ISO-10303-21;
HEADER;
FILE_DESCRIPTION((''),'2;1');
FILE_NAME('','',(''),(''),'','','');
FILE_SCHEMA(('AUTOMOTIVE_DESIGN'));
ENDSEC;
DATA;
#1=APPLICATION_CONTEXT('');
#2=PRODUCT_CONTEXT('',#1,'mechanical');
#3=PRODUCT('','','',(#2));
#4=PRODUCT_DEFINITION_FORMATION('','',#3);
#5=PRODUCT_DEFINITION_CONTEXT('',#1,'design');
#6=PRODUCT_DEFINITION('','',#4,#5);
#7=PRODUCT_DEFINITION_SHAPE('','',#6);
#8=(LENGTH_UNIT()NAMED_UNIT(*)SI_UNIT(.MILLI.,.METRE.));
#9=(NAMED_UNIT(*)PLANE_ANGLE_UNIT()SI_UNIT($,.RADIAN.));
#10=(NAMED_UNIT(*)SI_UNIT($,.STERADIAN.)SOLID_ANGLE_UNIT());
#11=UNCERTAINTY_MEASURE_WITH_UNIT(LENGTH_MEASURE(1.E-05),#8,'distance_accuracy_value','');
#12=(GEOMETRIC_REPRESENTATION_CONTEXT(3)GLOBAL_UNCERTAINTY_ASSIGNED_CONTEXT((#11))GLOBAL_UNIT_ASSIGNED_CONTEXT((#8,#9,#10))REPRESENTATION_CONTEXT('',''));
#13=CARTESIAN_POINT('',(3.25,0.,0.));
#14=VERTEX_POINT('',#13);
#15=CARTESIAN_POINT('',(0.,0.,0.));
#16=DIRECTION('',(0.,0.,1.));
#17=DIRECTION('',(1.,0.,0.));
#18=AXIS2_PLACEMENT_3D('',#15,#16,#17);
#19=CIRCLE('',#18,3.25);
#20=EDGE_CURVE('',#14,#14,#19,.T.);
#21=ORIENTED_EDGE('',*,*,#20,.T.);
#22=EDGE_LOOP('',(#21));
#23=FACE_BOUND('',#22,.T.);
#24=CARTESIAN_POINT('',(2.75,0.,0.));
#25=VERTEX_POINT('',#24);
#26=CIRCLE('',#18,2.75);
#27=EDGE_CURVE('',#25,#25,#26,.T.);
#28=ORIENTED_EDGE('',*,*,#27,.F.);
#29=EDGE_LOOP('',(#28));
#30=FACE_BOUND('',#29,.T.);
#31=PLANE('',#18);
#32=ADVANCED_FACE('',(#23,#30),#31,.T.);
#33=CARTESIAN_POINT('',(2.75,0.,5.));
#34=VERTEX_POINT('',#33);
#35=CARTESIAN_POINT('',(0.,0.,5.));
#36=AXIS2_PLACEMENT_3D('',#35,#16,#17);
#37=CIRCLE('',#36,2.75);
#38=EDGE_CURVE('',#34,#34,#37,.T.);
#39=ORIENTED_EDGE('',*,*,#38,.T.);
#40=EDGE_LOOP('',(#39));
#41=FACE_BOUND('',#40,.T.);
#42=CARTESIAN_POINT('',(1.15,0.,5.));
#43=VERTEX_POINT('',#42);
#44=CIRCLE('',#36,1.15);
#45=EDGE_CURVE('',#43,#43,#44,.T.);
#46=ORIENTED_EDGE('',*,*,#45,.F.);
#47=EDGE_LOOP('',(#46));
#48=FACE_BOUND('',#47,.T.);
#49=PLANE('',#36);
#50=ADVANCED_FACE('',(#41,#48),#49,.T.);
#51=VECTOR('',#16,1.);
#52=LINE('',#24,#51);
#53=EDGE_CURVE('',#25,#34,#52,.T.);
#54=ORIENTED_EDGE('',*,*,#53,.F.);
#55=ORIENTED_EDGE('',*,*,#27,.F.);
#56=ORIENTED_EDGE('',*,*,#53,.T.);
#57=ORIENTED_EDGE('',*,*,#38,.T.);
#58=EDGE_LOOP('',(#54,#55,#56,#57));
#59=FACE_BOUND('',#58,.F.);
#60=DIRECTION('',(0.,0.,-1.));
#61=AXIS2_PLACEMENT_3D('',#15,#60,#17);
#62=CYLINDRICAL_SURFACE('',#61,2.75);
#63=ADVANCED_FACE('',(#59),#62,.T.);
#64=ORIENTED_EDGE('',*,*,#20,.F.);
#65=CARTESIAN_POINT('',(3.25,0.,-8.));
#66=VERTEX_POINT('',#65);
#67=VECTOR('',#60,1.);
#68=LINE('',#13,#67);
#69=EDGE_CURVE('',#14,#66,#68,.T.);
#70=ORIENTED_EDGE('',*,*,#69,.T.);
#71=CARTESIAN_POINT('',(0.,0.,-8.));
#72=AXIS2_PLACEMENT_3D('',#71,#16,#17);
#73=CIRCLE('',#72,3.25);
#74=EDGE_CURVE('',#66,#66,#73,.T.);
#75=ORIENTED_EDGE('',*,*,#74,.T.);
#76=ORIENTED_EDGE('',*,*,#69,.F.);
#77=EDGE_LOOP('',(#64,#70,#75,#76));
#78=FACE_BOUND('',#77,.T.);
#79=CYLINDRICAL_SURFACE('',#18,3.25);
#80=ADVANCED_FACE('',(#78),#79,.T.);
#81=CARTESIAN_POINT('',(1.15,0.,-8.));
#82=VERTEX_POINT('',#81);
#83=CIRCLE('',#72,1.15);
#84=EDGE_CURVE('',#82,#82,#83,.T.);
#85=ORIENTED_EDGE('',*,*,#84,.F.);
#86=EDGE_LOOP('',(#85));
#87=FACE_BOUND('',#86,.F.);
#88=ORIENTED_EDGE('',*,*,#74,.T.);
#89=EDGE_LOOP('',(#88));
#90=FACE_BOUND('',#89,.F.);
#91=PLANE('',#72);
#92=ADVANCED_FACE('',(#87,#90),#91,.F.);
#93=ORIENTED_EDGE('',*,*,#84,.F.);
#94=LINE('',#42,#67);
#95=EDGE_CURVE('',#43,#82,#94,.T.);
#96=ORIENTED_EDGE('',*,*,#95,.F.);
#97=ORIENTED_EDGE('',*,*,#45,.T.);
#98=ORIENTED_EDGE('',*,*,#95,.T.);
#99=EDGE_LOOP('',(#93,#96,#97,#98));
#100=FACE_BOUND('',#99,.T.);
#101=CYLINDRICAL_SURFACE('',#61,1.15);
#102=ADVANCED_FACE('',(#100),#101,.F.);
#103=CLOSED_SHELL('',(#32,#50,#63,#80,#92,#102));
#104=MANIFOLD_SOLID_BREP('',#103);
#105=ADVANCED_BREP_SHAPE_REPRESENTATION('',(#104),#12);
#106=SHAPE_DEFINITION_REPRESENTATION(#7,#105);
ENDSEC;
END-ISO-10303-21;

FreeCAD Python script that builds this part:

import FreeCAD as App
import Part
import Sketcher

doc = App.newDocument("Part")
body = doc.addObject("PartDesign::Body", "Body")

sketch1 = doc.addObject("Sketcher::SketchObject", "Sketch")
body.addObject(sketch1)
sketch1.AttachmentSupport = (doc.XY_Plane, [""])
sketch1.MapMode = "FlatFace"
sketch1.addGeometry(Part.Circle(App.Vector(0, 0, 0), App.Vector(0, 0, 1), 2.75), False)
sketch1.addGeometry(Part.Circle(App.Vector(0, 0, 0), App.Vector(0, 0, 1), 1.15), False)
sketch1.addConstraint(Sketcher.Constraint("Coincident", 0, 3, -1, 1))
sketch1.addConstraint(Sketcher.Constraint("Coincident", 1, 3, -1, 1))
sketch1.addConstraint(Sketcher.Constraint("Diameter", 0, 5.5))
sketch1.addConstraint(Sketcher.Constraint("Diameter", 1, 2.3))
pad1 = doc.addObject("PartDesign::Pad", "Pad")
body.addObject(pad1)
pad1.Profile = sketch1
pad1.Length = 5

sketch2 = doc.addObject("Sketcher::SketchObject", "Sketch001")
body.addObject(sketch2)
sketch2.AttachmentSupport = (doc.XY_Plane, [""])
sketch2.MapMode = "FlatFace"
sketch2.addGeometry(Part.Circle(App.Vector(0, 0, 0), App.Vector(0, 0, 1), 3.25), False)
sketch2.addGeometry(Part.Circle(App.Vector(0, 0, 0), App.Vector(0, 0, 1), 1.15), False)
sketch2.addConstraint(Sketcher.Constraint("Coincident", 0, 3, -1, 1))
sketch2.addConstraint(Sketcher.Constraint("Coincident", 1, 3, -1, 1))
sketch2.addConstraint(Sketcher.Constraint("Diameter", 0, 6.5))
sketch2.addConstraint(Sketcher.Constraint("Diameter", 1, 2.3))
pad2 = doc.addObject("PartDesign::Pad", "Pad001")
body.addObject(pad2)
pad2.Profile = sketch2
pad2.Length = 8
pad2.Reversed = True

doc.recompute()
